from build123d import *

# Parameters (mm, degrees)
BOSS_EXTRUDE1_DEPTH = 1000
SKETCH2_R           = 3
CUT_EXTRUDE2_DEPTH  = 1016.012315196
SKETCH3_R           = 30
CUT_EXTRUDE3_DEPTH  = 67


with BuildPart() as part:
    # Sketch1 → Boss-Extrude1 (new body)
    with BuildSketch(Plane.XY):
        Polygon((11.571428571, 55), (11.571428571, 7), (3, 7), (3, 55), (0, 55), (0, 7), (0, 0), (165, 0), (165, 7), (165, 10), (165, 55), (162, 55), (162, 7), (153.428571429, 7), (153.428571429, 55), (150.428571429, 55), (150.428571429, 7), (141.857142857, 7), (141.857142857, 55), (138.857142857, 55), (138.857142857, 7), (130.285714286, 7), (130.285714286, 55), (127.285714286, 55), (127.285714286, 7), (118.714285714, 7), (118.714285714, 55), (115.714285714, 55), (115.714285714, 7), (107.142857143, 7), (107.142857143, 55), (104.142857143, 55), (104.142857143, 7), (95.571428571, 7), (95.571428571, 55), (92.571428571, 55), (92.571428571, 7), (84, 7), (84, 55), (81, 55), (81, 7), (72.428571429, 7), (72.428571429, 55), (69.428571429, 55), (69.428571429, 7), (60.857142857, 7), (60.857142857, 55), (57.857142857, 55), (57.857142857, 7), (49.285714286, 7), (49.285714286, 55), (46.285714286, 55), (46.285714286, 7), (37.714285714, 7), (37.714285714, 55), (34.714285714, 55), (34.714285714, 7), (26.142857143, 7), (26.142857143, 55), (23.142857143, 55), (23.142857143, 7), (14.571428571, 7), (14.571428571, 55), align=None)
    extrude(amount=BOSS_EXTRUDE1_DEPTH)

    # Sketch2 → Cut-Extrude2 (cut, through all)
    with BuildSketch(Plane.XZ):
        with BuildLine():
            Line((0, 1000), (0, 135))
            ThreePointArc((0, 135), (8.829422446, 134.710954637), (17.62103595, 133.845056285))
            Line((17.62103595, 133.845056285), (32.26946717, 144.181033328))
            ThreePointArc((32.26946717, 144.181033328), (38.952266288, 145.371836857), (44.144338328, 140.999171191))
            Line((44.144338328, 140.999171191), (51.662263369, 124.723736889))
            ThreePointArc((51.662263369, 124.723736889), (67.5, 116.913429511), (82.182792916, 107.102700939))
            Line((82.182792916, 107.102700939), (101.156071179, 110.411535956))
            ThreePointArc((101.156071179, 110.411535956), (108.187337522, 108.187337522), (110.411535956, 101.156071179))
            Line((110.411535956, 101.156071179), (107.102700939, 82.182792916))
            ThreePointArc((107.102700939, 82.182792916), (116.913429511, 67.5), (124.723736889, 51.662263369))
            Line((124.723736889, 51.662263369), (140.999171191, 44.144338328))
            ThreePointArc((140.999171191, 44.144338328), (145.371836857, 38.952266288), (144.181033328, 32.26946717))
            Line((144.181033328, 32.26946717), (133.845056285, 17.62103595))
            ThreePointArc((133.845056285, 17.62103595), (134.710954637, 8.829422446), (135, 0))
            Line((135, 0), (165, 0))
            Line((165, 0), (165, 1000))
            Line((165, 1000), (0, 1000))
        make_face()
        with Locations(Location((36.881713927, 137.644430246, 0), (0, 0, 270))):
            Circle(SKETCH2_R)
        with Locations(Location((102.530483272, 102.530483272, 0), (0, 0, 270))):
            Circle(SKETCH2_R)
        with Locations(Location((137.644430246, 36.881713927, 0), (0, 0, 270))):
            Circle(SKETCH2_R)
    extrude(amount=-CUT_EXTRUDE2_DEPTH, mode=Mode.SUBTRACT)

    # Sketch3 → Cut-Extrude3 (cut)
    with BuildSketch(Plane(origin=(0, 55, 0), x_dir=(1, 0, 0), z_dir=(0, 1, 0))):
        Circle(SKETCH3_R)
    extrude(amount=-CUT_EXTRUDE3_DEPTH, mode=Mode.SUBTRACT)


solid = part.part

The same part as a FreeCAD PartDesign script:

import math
import FreeCAD as App
import Part
import Sketcher
from FreeCAD import Vector


def add_polygon(sketch, points):
    """Adds a closed chain of lines whose ends are joined by coincident constraints."""
    first, n = sketch.GeometryCount, len(points)
    for a, b in zip(points, points[1:] + points[:1]):
        sketch.addGeometry(Part.LineSegment(App.Vector(*a, 0), App.Vector(*b, 0)), False)
    for i in range(n):
        sketch.addConstraint(Sketcher.Constraint("Coincident", first + i, 2, first + (i + 1) % n, 1))

doc = App.newDocument("Part")
params = doc.addObject("Spreadsheet::Sheet", "Params")
for row, (alias, value) in enumerate([
    ("sketch1_width", "3 mm"),
    ("sketch1_width2", "165 mm"),
    ("sketch1_height", "48 mm"),
    ("sketch1_height2", "55 mm"),
    ("pad1_length", "1000 mm"),
    ("sketch2_diameter", "6 mm"),
    ("sketch2_radius", "135 mm"),
    ("sketch2_radius2", "8 mm"),
    ("sketch2_width", "30 mm"),
    ("sketch2_height", "865 mm"),
    ("sketch3_diameter", "60 mm"),
    ("pocket2_length", "67 mm"),
], start=1):
    params.set(f"A{row}", alias)
    params.set(f"B{row}", "=" + value)
    params.setAlias(f"B{row}", alias)

body = doc.addObject("PartDesign::Body", "Body")

sketch1 = doc.addObject("Sketcher::SketchObject", "Sketch")
body.addObject(sketch1)
sketch1.AttachmentSupport = (doc.XY_Plane, [""])
sketch1.MapMode = "FlatFace"
add_polygon(sketch1, [(11.6, 55), (11.6, 7), (3, 7), (3, 55), (0, 55), (0, 0), (165, 0), (165, 55), (162, 55), (162, 7), (153.4, 7), (153.4, 55), (150.4, 55), (150.4, 7), (141.9, 7), (141.9, 55), (138.9, 55), (138.9, 7), (130.3, 7), (130.3, 55), (127.3, 55), (127.3, 7), (118.7, 7), (118.7, 55), (115.7, 55), (115.7, 7), (107.1, 7), (107.1, 55), (104.1, 55), (104.1, 7), (95.6, 7), (95.6, 55), (92.6, 55), (92.6, 7), (84, 7), (84, 55), (81, 55), (81, 7), (72.4, 7), (72.4, 55), (69.4, 55), (69.4, 7), (60.9, 7), (60.9, 55), (57.9, 55), (57.9, 7), (49.3, 7), (49.3, 55), (46.3, 55), (46.3, 7), (37.7, 7), (37.7, 55), (34.7, 55), (34.7, 7), (26.1, 7), (26.1, 55), (23.1, 55), (23.1, 7), (14.6, 7), (14.6, 55)])
sketch1.addConstraint([
    Sketcher.Constraint("Vertical", 0),
    Sketcher.Constraint("Horizontal", 1),
    Sketcher.Constraint("Vertical", 2),
    Sketcher.Constraint("Horizontal", 3),
    Sketcher.Constraint("Vertical", 4),
    Sketcher.Constraint("Horizontal", 5),
    Sketcher.Constraint("Vertical", 6),
    Sketcher.Constraint("Horizontal", 7),
    Sketcher.Constraint("Vertical", 8),
    Sketcher.Constraint("Horizontal", 9),
    Sketcher.Constraint("Vertical", 10),
    Sketcher.Constraint("Horizontal", 11),
    Sketcher.Constraint("Vertical", 12),
    Sketcher.Constraint("Horizontal", 13),
    Sketcher.Constraint("Vertical", 14),
    Sketcher.Constraint("Horizontal", 15),
    Sketcher.Constraint("Vertical", 16),
    Sketcher.Constraint("Horizontal", 17),
    Sketcher.Constraint("Vertical", 18),
    Sketcher.Constraint("Horizontal", 19),
    Sketcher.Constraint("Vertical", 20),
    Sketcher.Constraint("Horizontal", 21),
    Sketcher.Constraint("Vertical", 22),
    Sketcher.Constraint("Horizontal", 23),
    Sketcher.Constraint("Vertical", 24),
    Sketcher.Constraint("Horizontal", 25),
    Sketcher.Constraint("Vertical", 26),
    Sketcher.Constraint("Horizontal", 27),
    Sketcher.Constraint("Vertical", 28),
    Sketcher.Constraint("Horizontal", 29),
    Sketcher.Constraint("Vertical", 30),
    Sketcher.Constraint("Horizontal", 31),
    Sketcher.Constraint("Vertical", 32),
    Sketcher.Constraint("Horizontal", 33),
    Sketcher.Constraint("Vertical", 34),
    Sketcher.Constraint("Horizontal", 35),
    Sketcher.Constraint("Vertical", 36),
    Sketcher.Constraint("Horizontal", 37),
    Sketcher.Constraint("Vertical", 38),
    Sketcher.Constraint("Horizontal", 39),
    Sketcher.Constraint("Vertical", 40),
    Sketcher.Constraint("Horizontal", 41),
    Sketcher.Constraint("Vertical", 42),
    Sketcher.Constraint("Horizontal", 43),
    Sketcher.Constraint("Vertical", 44),
    Sketcher.Constraint("Horizontal", 45),
    Sketcher.Constraint("Vertical", 46),
    Sketcher.Constraint("Horizontal", 47),
    Sketcher.Constraint("Vertical", 48),
    Sketcher.Constraint("Horizontal", 49),
    Sketcher.Constraint("Vertical", 50),
    Sketcher.Constraint("Horizontal", 51),
    Sketcher.Constraint("Vertical", 52),
    Sketcher.Constraint("Horizontal", 53),
    Sketcher.Constraint("Vertical", 54),
    Sketcher.Constraint("Horizontal", 55),
    Sketcher.Constraint("Vertical", 56),
    Sketcher.Constraint("Horizontal", 57),
    Sketcher.Constraint("Vertical", 58),
    Sketcher.Constraint("Horizontal", 59),
    Sketcher.Constraint("Coincident", 4, 2, -1, 1),
    Sketcher.Constraint("Horizontal", 3, 2, 6, 2),
    Sketcher.Constraint("Horizontal", 1, 2, 8, 2),
    Sketcher.Constraint("Horizontal", 7, 2, 10, 2),
    Sketcher.Constraint("Horizontal", 9, 2, 12, 2),
    Sketcher.Constraint("Horizontal", 11, 2, 14, 2),
    Sketcher.Constraint("Horizontal", 13, 2, 16, 2),
    Sketcher.Constraint("Horizontal", 15, 2, 18, 2),
    Sketcher.Constraint("Horizontal", 17, 2, 20, 2),
    Sketcher.Constraint("Horizontal", 19, 2, 22, 2),
    Sketcher.Constraint("Horizontal", 21, 2, 24, 2),
    Sketcher.Constraint("Horizontal", 23, 2, 26, 2),
    Sketcher.Constraint("Horizontal", 25, 2, 28, 2),
    Sketcher.Constraint("Horizontal", 27, 2, 30, 2),
    Sketcher.Constraint("Horizontal", 29, 2, 32, 2),
    Sketcher.Constraint("Horizontal", 31, 2, 34, 2),
    Sketcher.Constraint("Horizontal", 33, 2, 36, 2),
    Sketcher.Constraint("Horizontal", 35, 2, 38, 2),
    Sketcher.Constraint("Horizontal", 37, 2, 40, 2),
    Sketcher.Constraint("Horizontal", 39, 2, 42, 2),
    Sketcher.Constraint("Horizontal", 41, 2, 44, 2),
    Sketcher.Constraint("Horizontal", 43, 2, 46, 2),
    Sketcher.Constraint("Horizontal", 45, 2, 48, 2),
    Sketcher.Constraint("Horizontal", 47, 2, 50, 2),
    Sketcher.Constraint("Horizontal", 49, 2, 52, 2),
    Sketcher.Constraint("Horizontal", 51, 2, 54, 2),
    Sketcher.Constraint("Horizontal", 53, 2, 56, 2),
    Sketcher.Constraint("Horizontal", 55, 2, 58, 2),
    Sketcher.Constraint("Equal", 3, 7),
    Sketcher.Constraint("Equal", 1, 9),
    Sketcher.Constraint("Equal", 7, 11),
    Sketcher.Constraint("Equal", 9, 13),
    Sketcher.Constraint("Equal", 11, 15),
    Sketcher.Constraint("Equal", 13, 17),
    Sketcher.Constraint("Equal", 15, 19),
    Sketcher.Constraint("Equal", 17, 21),
    Sketcher.Constraint("Equal", 19, 23),
    Sketcher.Constraint("Equal", 21, 25),
    Sketcher.Constraint("Equal", 23, 27),
    Sketcher.Constraint("Equal", 25, 29),
    Sketcher.Constraint("Equal", 27, 31),
    Sketcher.Constraint("Equal", 29, 33),
    Sketcher.Constraint("Equal", 31, 35),
    Sketcher.Constraint("Equal", 33, 37),
    Sketcher.Constraint("Equal", 35, 39),
    Sketcher.Constraint("Equal", 37, 41),
    Sketcher.Constraint("Equal", 39, 43),
    Sketcher.Constraint("Equal", 41, 45),
    Sketcher.Constraint("Equal", 43, 47),
    Sketcher.Constraint("Equal", 45, 49),
    Sketcher.Constraint("Equal", 47, 51),
    Sketcher.Constraint("Equal", 49, 53),
    Sketcher.Constraint("Equal", 51, 55),
    Sketcher.Constraint("Equal", 53, 57),
    Sketcher.Constraint("Equal", 55, 59),
    Sketcher.Constraint("DistanceX", 3, 2, 3, 1, 3.0),
    Sketcher.Constraint("DistanceX", 5, 1, 5, 2, 165.0),
    Sketcher.Constraint("DistanceY", 0, 2, 0, 1, 48.0),
    Sketcher.Constraint("DistanceY", 4, 2, 4, 1, 55.0),
])
sketch1.setExpression("Constraints[175]", "Params.sketch1_width")
sketch1.setExpression("Constraints[176]", "Params.sketch1_width2")
sketch1.setExpression("Constraints[177]", "Params.sketch1_height")
sketch1.setExpression("Constraints[178]", "Params.sketch1_height2")
pad1 = doc.addObject("PartDesign::Pad", "Pad")
body.addObject(pad1)
pad1.Profile = sketch1
pad1.setExpression("Length", "Params.pad1_length")

sketch2 = doc.addObject("Sketcher::SketchObject", "Sketch001")
body.addObject(sketch2)
sketch2.AttachmentSupport = (doc.XZ_Plane, [""])
sketch2.MapMode = "FlatFace"
sketch2.addGeometry([
    Part.LineSegment(Vector(0, 1000, 0), Vector(0, 135, 0)),
    Part.ArcOfCircle(Part.Circle(Vector(0, 0, 0), Vector(0, 0, 1), 135), math.radians(82.5), math.radians(90)),
    Part.LineSegment(Vector(17.6, 133.8, 0), Vector(32.3, 144.2, 0)),
    Part.ArcOfCircle(Part.Circle(Vector(36.9, 137.6, 0), Vector(0, 0, 1), 8), math.radians(25), math.radians(125)),
    Part.LineSegment(Vector(44.1, 141, 0), Vector(51.7, 124.7, 0)),
    Part.ArcOfCircle(Part.Circle(Vector(0, 0, 0), Vector(0, 0, 1), 135), math.radians(52.5), math.radians(67.5)),
    Part.LineSegment(Vector(82.2, 107.1, 0), Vector(101.2, 110.4, 0)),
    Part.ArcOfCircle(Part.Circle(Vector(102.5, 102.5, 0), Vector(0, 0, 1), 8), math.radians(-10), math.radians(100)),
    Part.LineSegment(Vector(110.4, 101.2, 0), Vector(107.1, 82.2, 0)),
    Part.ArcOfCircle(Part.Circle(Vector(0, 0, 0), Vector(0, 0, 1), 135), math.radians(22.5), math.radians(37.5)),
    Part.LineSegment(Vector(124.7, 51.7, 0), Vector(141, 44.1, 0)),
    Part.ArcOfCircle(Part.Circle(Vector(137.6, 36.9, 0), Vector(0, 0, 1), 8), math.radians(-35), math.radians(65)),
    Part.LineSegment(Vector(144.2, 32.3, 0), Vector(133.8, 17.6, 0)),
    Part.ArcOfCircle(Part.Circle(Vector(0, 0, 0), Vector(0, 0, 1), 135), math.radians(0), math.radians(7.5)),
    Part.LineSegment(Vector(135, 0, 0), Vector(165, 0, 0)),
    Part.LineSegment(Vector(165, 0, 0), Vector(165, 1000, 0)),
    Part.LineSegment(Vector(165, 1000, 0), Vector(0, 1000, 0)),
    Part.Circle(Vector(36.9, 137.6, 0), Vector(0, 0, 1), 3),
    Part.Circle(Vector(102.5, 102.5, 0), Vector(0, 0, 1), 3),
    Part.Circle(Vector(137.6, 36.9, 0), Vector(0, 0, 1), 3),
], False)
sketch2.addConstraint([
    Sketcher.Constraint("Coincident", 0, 2, 1, 2),
    Sketcher.Constraint("Coincident", 1, 1, 2, 1),
    Sketcher.Constraint("Tangent", 2, 2, 3, 2),
    Sketcher.Constraint("Tangent", 3, 1, 4, 1),
    Sketcher.Constraint("Coincident", 4, 2, 5, 2),
    Sketcher.Constraint("Coincident", 5, 1, 6, 1),
    Sketcher.Constraint("Tangent", 6, 2, 7, 2),
    Sketcher.Constraint("Tangent", 7, 1, 8, 1),
    Sketcher.Constraint("Coincident", 8, 2, 9, 2),
    Sketcher.Constraint("Coincident", 9, 1, 10, 1),
    Sketcher.Constraint("Tangent", 10, 2, 11, 2),
    Sketcher.Constraint("Tangent", 11, 1, 12, 1),
    Sketcher.Constraint("Coincident", 12, 2, 13, 2),
    Sketcher.Constraint("Coincident", 13, 1, 14, 1),
    Sketcher.Constraint("Coincident", 14, 2, 15, 1),
    Sketcher.Constraint("Coincident", 15, 2, 16, 1),
    Sketcher.Constraint("Coincident", 16, 2, 0, 1),
    Sketcher.Constraint("Vertical", 0),
    Sketcher.Constraint("Horizontal", 14),
    Sketcher.Constraint("Vertical", 15),
    Sketcher.Constraint("Horizontal", 16),
    Sketcher.Constraint("Coincident", 1, 3, -1, 1),
    Sketcher.Constraint("Coincident", 5, 3, -1, 1),
    Sketcher.Constraint("Coincident", 9, 3, -1, 1),
    Sketcher.Constraint("Coincident", 13, 3, -1, 1),
    Sketcher.Constraint("Coincident", 17, 3, 3, 3),
    Sketcher.Constraint("Coincident", 18, 3, 7, 3),
    Sketcher.Constraint("Coincident", 19, 3, 11, 3),
    Sketcher.Constraint("Equal", 1, 5),
    Sketcher.Constraint("Equal", 3, 7),
    Sketcher.Constraint("Equal", 5, 9),
    Sketcher.Constraint("Equal", 7, 11),
    Sketcher.Constraint("Equal", 9, 13),
    Sketcher.Constraint("Equal", 17, 18),
    Sketcher.Constraint("Equal", 18, 19),
    Sketcher.Constraint("PointOnObject", 0, 2, -2),
    Sketcher.Constraint("PointOnObject", 13, 1, -1),
    Sketcher.Constraint("Equal", 2, 4),
    Sketcher.Constraint("Equal", 6, 8),
    Sketcher.Constraint("Equal", 4, 10),
    Sketcher.Constraint("Equal", 10, 12),
    Sketcher.Constraint("Diameter", 17, 6.0),
    Sketcher.Constraint("Radius", 1, 135.0),
    Sketcher.Constraint("Radius", 3, 8.0),
    Sketcher.Constraint("DistanceX", 14, 1, 14, 2, 30.0),
    Sketcher.Constraint("DistanceY", 0, 2, 0, 1, 865.0),
    Sketcher.Constraint("DistanceY", -1, 1, 5, 1, 107.102701),
    Sketcher.Constraint("DistanceX", -1, 1, 8, 2, 107.102701),
    Sketcher.Constraint("DistanceY", 6, 2, 4, 2, 14.312201),
    Sketcher.Constraint("DistanceX", 7, 1, 9, 1, 14.312201),
    Sketcher.Constraint("Distance", 6, 19.259639),
    Sketcher.Constraint("DistanceY", -1, 1, 3, 3, 137.64443),
    Sketcher.Constraint("DistanceX", -1, 1, 11, 3, 137.64443),
    Sketcher.Constraint("DistanceX", -1, 1, 3, 1, 44.144338),
])
sketch2.setExpression("Constraints[41]", "Params.sketch2_diameter")
sketch2.setExpression("Constraints[42]", "Params.sketch2_radius")
sketch2.setExpression("Constraints[43]", "Params.sketch2_radius2")
sketch2.setExpression("Constraints[44]", "Params.sketch2_width")
sketch2.setExpression("Constraints[45]", "Params.sketch2_height")
pocket1 = doc.addObject("PartDesign::Pocket", "Pocket")
body.addObject(pocket1)
pocket1.Profile = sketch2
pocket1.Type = "ThroughAll"

sketch3 = doc.addObject("Sketcher::SketchObject", "Sketch002")
body.addObject(sketch3)
sketch3.AttachmentSupport = (doc.XZ_Plane, [""])
sketch3.MapMode = "FlatFace"
sketch3.AttachmentOffset = App.Placement(Vector(0, 0, -55), App.Rotation())
sketch3.addGeometry(Part.Circle(Vector(0, 0, 0), Vector(0, 0, 1), 30), False)
sketch3.addConstraint([
    Sketcher.Constraint("Coincident", 0, 3, -1, 1),
    Sketcher.Constraint("Diameter", 0, 60.0),
])
sketch3.setExpression("Constraints[1]", "Params.sketch3_diameter")
pocket2 = doc.addObject("PartDesign::Pocket", "Pocket001")
body.addObject(pocket2)
pocket2.Profile = sketch3
pocket2.setExpression("Length", "Params.pocket2_length")
pocket2.Reversed = True

doc.recompute()
